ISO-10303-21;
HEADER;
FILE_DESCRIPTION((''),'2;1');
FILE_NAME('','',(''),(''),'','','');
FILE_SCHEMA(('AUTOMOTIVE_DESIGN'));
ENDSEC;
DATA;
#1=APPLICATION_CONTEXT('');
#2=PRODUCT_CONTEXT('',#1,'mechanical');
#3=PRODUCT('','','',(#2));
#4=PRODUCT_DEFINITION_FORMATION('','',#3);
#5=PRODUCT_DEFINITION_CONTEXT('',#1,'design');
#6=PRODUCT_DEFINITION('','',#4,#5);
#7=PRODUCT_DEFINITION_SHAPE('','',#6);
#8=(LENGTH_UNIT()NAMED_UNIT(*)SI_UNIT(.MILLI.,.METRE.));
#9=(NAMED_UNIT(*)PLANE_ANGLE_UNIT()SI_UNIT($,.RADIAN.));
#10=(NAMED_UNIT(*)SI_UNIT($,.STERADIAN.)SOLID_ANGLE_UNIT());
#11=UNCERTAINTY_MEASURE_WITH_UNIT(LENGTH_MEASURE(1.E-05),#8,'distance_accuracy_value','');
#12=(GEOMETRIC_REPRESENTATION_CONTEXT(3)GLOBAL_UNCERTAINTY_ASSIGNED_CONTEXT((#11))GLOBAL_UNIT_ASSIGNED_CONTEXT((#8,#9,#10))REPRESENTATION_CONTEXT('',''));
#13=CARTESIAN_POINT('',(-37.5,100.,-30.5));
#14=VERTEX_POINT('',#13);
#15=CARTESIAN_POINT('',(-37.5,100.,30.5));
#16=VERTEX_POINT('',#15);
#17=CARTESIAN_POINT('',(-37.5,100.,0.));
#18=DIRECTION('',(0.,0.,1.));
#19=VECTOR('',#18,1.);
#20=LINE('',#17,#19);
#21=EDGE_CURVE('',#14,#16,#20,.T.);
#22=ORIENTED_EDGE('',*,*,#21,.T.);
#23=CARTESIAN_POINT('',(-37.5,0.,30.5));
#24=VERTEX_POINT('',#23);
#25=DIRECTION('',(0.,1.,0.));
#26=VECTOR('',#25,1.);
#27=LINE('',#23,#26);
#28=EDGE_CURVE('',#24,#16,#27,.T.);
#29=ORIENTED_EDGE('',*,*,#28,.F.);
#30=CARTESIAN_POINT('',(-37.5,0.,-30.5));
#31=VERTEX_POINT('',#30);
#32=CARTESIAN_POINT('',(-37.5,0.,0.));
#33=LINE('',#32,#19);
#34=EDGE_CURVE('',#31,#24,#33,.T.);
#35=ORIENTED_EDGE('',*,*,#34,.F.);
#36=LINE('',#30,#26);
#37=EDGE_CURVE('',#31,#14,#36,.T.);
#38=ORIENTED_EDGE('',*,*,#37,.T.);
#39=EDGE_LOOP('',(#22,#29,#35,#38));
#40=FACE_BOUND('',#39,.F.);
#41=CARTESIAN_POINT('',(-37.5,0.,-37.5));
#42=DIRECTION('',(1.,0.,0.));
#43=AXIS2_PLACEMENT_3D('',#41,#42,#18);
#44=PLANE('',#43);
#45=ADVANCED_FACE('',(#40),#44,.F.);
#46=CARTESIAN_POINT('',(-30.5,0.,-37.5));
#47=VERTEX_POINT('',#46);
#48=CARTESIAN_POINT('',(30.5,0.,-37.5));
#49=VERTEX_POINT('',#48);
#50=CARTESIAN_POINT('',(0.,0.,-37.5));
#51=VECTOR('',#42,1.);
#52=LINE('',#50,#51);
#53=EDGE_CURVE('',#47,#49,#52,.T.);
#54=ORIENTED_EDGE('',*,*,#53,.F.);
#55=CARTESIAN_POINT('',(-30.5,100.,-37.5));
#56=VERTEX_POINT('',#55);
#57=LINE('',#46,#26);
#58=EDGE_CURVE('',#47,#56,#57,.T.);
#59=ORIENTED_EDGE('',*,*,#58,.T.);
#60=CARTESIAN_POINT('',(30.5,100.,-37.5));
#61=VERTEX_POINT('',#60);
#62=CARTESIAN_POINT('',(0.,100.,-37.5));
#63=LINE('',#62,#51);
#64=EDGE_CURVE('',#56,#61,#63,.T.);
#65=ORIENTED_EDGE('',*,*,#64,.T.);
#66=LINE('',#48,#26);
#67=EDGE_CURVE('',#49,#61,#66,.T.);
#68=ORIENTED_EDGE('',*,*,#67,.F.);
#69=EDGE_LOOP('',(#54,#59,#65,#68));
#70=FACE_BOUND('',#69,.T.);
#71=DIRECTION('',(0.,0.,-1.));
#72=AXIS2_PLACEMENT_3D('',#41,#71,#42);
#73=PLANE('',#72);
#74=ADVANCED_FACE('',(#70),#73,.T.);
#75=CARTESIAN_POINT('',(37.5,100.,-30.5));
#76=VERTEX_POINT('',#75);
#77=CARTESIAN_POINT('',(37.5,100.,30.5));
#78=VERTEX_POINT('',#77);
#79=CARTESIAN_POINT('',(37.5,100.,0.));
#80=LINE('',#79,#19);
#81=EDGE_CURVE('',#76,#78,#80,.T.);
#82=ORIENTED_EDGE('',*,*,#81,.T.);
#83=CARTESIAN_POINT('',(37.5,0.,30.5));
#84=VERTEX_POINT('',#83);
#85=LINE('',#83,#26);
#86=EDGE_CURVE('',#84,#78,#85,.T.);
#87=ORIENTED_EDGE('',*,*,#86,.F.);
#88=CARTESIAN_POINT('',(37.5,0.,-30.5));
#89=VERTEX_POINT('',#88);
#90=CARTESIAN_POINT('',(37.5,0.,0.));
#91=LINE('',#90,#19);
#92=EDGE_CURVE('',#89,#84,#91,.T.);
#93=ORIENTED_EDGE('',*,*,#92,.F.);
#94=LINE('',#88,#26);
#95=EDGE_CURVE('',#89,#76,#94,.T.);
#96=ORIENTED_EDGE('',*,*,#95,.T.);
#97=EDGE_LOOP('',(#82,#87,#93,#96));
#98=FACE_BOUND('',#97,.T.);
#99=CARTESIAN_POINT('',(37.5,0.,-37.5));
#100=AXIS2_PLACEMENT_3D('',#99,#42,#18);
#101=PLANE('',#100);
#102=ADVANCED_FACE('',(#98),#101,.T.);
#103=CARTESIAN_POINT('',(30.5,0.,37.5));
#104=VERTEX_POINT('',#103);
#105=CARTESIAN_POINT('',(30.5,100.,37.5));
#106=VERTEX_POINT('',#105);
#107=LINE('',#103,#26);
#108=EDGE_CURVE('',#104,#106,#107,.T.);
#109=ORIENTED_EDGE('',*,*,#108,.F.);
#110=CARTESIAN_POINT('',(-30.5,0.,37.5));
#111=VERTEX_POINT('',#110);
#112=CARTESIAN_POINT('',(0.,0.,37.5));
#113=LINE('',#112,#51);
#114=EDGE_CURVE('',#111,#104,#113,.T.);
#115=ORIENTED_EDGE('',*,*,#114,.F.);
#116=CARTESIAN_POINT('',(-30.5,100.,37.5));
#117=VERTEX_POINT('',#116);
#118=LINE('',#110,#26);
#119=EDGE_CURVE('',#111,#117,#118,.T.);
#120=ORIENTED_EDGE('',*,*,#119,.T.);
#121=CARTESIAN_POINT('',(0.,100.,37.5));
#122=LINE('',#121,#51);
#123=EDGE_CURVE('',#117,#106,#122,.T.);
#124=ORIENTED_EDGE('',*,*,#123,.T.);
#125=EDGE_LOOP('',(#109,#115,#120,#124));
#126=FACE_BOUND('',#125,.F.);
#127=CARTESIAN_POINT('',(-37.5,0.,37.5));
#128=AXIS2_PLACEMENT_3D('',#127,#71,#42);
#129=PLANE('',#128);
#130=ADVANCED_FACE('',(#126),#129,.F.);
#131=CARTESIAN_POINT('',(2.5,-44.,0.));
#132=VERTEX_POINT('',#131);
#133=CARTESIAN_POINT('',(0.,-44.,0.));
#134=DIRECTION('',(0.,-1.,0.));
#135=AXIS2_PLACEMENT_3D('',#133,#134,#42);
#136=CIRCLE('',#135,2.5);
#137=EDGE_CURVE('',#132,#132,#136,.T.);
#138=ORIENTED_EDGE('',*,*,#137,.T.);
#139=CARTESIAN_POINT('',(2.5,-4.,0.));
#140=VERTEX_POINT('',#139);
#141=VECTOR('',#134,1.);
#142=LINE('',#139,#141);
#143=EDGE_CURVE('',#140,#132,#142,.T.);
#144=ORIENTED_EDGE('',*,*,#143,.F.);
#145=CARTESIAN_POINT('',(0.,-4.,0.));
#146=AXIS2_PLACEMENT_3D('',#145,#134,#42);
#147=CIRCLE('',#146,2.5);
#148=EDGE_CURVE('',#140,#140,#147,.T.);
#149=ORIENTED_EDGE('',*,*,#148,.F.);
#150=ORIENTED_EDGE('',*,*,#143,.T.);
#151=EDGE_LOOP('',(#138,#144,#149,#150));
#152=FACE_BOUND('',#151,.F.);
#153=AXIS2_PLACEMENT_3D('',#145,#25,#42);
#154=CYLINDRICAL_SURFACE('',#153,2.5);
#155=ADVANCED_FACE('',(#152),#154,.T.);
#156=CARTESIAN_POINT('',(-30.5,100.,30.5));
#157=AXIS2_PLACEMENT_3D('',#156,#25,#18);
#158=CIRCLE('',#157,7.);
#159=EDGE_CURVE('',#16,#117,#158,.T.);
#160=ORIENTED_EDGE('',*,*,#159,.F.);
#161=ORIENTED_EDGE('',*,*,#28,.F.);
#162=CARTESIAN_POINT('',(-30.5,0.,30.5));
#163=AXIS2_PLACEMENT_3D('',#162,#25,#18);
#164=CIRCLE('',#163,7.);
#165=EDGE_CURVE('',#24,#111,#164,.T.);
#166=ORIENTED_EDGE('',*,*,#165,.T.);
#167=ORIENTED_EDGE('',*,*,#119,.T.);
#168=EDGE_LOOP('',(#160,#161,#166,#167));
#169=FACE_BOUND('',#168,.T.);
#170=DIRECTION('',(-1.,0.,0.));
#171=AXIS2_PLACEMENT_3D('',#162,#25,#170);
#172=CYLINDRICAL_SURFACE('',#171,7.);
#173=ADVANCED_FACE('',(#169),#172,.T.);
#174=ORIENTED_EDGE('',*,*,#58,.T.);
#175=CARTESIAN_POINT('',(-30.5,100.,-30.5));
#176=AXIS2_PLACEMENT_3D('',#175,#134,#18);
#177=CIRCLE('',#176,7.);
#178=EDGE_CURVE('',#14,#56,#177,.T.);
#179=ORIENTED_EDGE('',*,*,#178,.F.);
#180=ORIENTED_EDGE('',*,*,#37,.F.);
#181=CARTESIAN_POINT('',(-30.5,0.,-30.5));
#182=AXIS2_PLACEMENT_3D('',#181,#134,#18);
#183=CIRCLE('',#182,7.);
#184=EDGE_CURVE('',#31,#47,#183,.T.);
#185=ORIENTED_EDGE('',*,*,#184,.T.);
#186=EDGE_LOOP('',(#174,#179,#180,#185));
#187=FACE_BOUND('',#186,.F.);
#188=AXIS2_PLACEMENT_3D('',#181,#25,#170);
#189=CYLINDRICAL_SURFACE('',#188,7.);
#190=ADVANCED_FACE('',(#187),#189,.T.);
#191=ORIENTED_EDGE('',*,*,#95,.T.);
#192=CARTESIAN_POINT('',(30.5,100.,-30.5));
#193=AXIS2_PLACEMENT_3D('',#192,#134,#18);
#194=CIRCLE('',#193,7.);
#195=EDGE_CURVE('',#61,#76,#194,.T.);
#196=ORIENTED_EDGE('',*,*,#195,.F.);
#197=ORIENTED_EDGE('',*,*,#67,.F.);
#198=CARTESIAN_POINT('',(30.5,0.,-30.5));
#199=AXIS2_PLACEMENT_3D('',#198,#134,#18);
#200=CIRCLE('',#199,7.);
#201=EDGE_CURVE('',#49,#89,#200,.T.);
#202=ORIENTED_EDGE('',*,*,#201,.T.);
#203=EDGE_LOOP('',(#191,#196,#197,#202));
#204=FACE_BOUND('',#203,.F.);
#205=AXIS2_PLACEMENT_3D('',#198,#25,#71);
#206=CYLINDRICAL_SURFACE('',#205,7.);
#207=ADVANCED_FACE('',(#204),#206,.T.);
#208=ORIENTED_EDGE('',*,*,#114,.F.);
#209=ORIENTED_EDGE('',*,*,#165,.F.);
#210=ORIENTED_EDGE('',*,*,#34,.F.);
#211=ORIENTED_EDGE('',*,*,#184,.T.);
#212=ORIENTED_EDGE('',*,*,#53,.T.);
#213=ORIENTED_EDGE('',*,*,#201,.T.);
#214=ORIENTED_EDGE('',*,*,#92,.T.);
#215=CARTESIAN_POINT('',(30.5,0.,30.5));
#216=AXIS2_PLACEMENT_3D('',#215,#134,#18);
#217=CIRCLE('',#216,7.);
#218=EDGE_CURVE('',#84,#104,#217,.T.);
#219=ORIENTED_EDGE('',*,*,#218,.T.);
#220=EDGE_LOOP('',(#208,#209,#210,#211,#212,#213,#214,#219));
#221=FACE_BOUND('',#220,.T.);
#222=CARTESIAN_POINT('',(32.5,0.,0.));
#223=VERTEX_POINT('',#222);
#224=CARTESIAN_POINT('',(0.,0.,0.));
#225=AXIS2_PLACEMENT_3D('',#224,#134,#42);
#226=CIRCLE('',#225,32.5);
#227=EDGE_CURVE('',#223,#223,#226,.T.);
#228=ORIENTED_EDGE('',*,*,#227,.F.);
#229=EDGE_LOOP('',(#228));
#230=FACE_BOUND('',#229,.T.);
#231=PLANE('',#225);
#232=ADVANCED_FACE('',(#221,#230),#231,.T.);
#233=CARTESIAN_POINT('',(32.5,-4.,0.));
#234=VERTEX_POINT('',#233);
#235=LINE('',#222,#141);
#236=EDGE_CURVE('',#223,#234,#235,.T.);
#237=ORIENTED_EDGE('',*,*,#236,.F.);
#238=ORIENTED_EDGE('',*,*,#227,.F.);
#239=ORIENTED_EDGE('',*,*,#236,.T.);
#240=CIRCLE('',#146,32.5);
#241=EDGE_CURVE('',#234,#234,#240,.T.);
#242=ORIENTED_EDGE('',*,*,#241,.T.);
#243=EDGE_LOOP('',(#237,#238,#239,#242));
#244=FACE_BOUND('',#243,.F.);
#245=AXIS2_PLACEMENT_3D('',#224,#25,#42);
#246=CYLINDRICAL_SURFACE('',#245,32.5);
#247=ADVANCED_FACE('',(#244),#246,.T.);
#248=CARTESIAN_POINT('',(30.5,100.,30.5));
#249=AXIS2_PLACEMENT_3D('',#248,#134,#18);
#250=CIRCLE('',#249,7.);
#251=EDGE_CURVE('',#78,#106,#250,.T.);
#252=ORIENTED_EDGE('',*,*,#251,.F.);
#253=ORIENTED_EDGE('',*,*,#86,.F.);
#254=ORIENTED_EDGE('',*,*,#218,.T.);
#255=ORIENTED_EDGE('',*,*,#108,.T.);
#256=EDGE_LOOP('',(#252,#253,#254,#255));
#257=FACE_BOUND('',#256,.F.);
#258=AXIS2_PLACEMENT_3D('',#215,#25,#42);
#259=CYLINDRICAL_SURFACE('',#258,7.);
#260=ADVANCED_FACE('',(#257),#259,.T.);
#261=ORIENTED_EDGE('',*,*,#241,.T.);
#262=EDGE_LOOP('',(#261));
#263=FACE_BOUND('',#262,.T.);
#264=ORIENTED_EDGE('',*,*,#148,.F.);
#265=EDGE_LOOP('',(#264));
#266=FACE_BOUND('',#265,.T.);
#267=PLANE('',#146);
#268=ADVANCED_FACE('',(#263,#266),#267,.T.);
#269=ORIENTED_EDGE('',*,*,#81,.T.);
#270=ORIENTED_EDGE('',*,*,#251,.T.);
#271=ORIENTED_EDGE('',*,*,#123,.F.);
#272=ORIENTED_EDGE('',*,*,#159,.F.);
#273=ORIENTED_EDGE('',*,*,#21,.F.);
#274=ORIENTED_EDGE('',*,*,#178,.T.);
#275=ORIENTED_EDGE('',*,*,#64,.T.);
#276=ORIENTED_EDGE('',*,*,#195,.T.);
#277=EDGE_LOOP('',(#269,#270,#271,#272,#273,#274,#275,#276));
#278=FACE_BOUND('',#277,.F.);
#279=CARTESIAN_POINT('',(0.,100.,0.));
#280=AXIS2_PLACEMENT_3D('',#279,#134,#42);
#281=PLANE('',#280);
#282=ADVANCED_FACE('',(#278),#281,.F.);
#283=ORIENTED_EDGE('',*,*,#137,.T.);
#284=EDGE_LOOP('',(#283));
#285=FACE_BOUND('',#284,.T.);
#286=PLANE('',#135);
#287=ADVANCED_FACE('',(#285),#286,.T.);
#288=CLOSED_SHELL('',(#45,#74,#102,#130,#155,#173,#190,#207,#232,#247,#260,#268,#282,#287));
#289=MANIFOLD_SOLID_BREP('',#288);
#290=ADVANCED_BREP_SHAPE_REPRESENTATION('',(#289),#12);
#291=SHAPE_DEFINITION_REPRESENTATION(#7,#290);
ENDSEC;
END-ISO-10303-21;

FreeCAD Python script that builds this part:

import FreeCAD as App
import Part
import Sketcher

V = App.Vector


def edges_at(feature, points):
    """Names of the edges that pass closest to the given points."""
    edges = feature.Shape.Edges
    near = lambda p: min(range(len(edges)), key=lambda i: edges[i].distToShape(Part.Vertex(*p))[0])
    return sorted({f"Edge{near(p) + 1}" for p in points})

doc = App.newDocument("Part")
body = doc.addObject("PartDesign::Body", "Body")

# Sketch on XZ plane
sketch1 = body.newObject("Sketcher::SketchObject", "Sketch")
sketch1.AttachmentSupport = (doc.getObject("XZ_Plane"), [""])
sketch1.MapMode = "FlatFace"
sketch1.addGeometry([
    Part.LineSegment(V(-37.5, 37.5, 0), V(-37.5, -37.5, 0)),
    Part.LineSegment(V(-37.5, -37.5, 0), V(37.5, -37.5, 0)),
    Part.LineSegment(V(37.5, -37.5, 0), V(37.5, 37.5, 0)),
    Part.LineSegment(V(37.5, 37.5, 0), V(-37.5, 37.5, 0)),
], False)
sketch1.addConstraint([
    Sketcher.Constraint("Coincident", 0, 2, 1, 1),
    Sketcher.Constraint("Coincident", 1, 2, 2, 1),
    Sketcher.Constraint("Coincident", 2, 2, 3, 1),
    Sketcher.Constraint("Coincident", 3, 2, 0, 1),
    Sketcher.Constraint("Vertical", 0),
    Sketcher.Constraint("Horizontal", 1),
    Sketcher.Constraint("Vertical", 2),
    Sketcher.Constraint("Horizontal", 3),
    Sketcher.Constraint("Symmetric", 0, 2, 2, 2, -1, 1),
    Sketcher.Constraint("Equal", 3, 0),
    Sketcher.Constraint("DistanceX", 1, 1, 1, 2, 75.0),
])
pad1 = body.newObject("PartDesign::Pad", "Pad")
pad1.Profile = sketch1
pad1.Length = 100
pad1.Reversed = True
doc.recompute()

fillet = body.newObject("PartDesign::Fillet", "Fillet")
fillet.Base = (pad1, edges_at(pad1, [
    (37.5, 50, 37.5),
    (37.5, 50, -37.5),
    (-37.5, 50, -37.5),
    (-37.5, 50, 37.5),
]))
fillet.Radius = 7

# Sketch on XZ plane
sketch2 = body.newObject("Sketcher::SketchObject", "Sketch001")
sketch2.AttachmentSupport = (doc.getObject("XZ_Plane"), [""])
sketch2.MapMode = "FlatFace"
sketch2.addGeometry(Part.Circle(V(0, 0, 0), V(0, 0, 1), 32.5), False)
sketch2.addConstraint([
    Sketcher.Constraint("Coincident", 0, 3, -1, 1),
    Sketcher.Constraint("Diameter", 0, 65.0),
])
pad2 = body.newObject("PartDesign::Pad", "Pad001")
pad2.Profile = sketch2
pad2.Length = 4

# Sketch on XZ plane
sketch3 = body.newObject("Sketcher::SketchObject", "Sketch002")
sketch3.AttachmentSupport = (doc.getObject("XZ_Plane"), [""])
sketch3.MapMode = "FlatFace"
sketch3.AttachmentOffset = App.Placement(V(0, 0, 4), App.Rotation())
sketch3.addGeometry(Part.Circle(V(0, 0, 0), V(0, 0, 1), 2.5), False)
sketch3.addConstraint([
    Sketcher.Constraint("Coincident", 0, 3, -1, 1),
    Sketcher.Constraint("Diameter", 0, 5.0),
])
pad3 = body.newObject("PartDesign::Pad", "Pad002")
pad3.Profile = sketch3
pad3.Length = 40

doc.recompute()
